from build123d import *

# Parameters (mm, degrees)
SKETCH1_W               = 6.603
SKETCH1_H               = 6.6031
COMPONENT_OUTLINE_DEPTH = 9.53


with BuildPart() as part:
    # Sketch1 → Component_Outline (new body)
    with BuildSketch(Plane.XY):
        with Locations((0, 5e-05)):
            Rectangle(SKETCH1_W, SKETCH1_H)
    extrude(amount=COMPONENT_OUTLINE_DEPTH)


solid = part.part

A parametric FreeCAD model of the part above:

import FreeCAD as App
import Part
import Sketcher
Q = App.Units.Quantity


def add_polygon(sketch, points):
    """Adds a closed chain of lines whose ends are joined by coincident constraints."""
    first, n = sketch.GeometryCount, len(points)
    for a, b in zip(points, points[1:] + points[:1]):
        sketch.addGeometry(Part.LineSegment(App.Vector(*a, 0), App.Vector(*b, 0)), False)
    for i in range(n):
        sketch.addConstraint(Sketcher.Constraint("Coincident", first + i, 2, first + (i + 1) % n, 1))

doc = App.newDocument("Part")
body = doc.addObject("PartDesign::Body", "Body")

# Sketch on XY plane
sketch1 = body.newObject("Sketcher::SketchObject", "Sketch")
sketch1.AttachmentSupport = (doc.getObject("XY_Plane"), [""])
sketch1.MapMode = "FlatFace"
add_polygon(sketch1, [(-3.3015, 3.3016), (-3.3015, -3.3015), (3.3015, -3.3015), (3.3015, 3.3016)])  # lines 0-3
sketch1.addConstraint(Sketcher.Constraint("Vertical", 0))
sketch1.addConstraint(Sketcher.Constraint("Horizontal", 1))
sketch1.addConstraint(Sketcher.Constraint("Vertical", 2))
sketch1.addConstraint(Sketcher.Constraint("Horizontal", 3))
sketch1.addConstraint(Sketcher.Constraint("DistanceX", 1, 1, 1, 2, Q("6.603 mm")))
sketch1.addConstraint(Sketcher.Constraint("DistanceY", 0, 2, 0, 1, Q("6.6031 mm")))
sketch1.addConstraint(Sketcher.Constraint("DistanceX", 0, 2, -1, 1, Q("3.3015 mm")))
sketch1.addConstraint(Sketcher.Constraint("DistanceY", 0, 2, -1, 1, Q("3.3015 mm")))
pad1 = body.newObject("PartDesign::Pad", "Pad")
pad1.Profile = sketch1
pad1.Length = 9.53

doc.recompute()
